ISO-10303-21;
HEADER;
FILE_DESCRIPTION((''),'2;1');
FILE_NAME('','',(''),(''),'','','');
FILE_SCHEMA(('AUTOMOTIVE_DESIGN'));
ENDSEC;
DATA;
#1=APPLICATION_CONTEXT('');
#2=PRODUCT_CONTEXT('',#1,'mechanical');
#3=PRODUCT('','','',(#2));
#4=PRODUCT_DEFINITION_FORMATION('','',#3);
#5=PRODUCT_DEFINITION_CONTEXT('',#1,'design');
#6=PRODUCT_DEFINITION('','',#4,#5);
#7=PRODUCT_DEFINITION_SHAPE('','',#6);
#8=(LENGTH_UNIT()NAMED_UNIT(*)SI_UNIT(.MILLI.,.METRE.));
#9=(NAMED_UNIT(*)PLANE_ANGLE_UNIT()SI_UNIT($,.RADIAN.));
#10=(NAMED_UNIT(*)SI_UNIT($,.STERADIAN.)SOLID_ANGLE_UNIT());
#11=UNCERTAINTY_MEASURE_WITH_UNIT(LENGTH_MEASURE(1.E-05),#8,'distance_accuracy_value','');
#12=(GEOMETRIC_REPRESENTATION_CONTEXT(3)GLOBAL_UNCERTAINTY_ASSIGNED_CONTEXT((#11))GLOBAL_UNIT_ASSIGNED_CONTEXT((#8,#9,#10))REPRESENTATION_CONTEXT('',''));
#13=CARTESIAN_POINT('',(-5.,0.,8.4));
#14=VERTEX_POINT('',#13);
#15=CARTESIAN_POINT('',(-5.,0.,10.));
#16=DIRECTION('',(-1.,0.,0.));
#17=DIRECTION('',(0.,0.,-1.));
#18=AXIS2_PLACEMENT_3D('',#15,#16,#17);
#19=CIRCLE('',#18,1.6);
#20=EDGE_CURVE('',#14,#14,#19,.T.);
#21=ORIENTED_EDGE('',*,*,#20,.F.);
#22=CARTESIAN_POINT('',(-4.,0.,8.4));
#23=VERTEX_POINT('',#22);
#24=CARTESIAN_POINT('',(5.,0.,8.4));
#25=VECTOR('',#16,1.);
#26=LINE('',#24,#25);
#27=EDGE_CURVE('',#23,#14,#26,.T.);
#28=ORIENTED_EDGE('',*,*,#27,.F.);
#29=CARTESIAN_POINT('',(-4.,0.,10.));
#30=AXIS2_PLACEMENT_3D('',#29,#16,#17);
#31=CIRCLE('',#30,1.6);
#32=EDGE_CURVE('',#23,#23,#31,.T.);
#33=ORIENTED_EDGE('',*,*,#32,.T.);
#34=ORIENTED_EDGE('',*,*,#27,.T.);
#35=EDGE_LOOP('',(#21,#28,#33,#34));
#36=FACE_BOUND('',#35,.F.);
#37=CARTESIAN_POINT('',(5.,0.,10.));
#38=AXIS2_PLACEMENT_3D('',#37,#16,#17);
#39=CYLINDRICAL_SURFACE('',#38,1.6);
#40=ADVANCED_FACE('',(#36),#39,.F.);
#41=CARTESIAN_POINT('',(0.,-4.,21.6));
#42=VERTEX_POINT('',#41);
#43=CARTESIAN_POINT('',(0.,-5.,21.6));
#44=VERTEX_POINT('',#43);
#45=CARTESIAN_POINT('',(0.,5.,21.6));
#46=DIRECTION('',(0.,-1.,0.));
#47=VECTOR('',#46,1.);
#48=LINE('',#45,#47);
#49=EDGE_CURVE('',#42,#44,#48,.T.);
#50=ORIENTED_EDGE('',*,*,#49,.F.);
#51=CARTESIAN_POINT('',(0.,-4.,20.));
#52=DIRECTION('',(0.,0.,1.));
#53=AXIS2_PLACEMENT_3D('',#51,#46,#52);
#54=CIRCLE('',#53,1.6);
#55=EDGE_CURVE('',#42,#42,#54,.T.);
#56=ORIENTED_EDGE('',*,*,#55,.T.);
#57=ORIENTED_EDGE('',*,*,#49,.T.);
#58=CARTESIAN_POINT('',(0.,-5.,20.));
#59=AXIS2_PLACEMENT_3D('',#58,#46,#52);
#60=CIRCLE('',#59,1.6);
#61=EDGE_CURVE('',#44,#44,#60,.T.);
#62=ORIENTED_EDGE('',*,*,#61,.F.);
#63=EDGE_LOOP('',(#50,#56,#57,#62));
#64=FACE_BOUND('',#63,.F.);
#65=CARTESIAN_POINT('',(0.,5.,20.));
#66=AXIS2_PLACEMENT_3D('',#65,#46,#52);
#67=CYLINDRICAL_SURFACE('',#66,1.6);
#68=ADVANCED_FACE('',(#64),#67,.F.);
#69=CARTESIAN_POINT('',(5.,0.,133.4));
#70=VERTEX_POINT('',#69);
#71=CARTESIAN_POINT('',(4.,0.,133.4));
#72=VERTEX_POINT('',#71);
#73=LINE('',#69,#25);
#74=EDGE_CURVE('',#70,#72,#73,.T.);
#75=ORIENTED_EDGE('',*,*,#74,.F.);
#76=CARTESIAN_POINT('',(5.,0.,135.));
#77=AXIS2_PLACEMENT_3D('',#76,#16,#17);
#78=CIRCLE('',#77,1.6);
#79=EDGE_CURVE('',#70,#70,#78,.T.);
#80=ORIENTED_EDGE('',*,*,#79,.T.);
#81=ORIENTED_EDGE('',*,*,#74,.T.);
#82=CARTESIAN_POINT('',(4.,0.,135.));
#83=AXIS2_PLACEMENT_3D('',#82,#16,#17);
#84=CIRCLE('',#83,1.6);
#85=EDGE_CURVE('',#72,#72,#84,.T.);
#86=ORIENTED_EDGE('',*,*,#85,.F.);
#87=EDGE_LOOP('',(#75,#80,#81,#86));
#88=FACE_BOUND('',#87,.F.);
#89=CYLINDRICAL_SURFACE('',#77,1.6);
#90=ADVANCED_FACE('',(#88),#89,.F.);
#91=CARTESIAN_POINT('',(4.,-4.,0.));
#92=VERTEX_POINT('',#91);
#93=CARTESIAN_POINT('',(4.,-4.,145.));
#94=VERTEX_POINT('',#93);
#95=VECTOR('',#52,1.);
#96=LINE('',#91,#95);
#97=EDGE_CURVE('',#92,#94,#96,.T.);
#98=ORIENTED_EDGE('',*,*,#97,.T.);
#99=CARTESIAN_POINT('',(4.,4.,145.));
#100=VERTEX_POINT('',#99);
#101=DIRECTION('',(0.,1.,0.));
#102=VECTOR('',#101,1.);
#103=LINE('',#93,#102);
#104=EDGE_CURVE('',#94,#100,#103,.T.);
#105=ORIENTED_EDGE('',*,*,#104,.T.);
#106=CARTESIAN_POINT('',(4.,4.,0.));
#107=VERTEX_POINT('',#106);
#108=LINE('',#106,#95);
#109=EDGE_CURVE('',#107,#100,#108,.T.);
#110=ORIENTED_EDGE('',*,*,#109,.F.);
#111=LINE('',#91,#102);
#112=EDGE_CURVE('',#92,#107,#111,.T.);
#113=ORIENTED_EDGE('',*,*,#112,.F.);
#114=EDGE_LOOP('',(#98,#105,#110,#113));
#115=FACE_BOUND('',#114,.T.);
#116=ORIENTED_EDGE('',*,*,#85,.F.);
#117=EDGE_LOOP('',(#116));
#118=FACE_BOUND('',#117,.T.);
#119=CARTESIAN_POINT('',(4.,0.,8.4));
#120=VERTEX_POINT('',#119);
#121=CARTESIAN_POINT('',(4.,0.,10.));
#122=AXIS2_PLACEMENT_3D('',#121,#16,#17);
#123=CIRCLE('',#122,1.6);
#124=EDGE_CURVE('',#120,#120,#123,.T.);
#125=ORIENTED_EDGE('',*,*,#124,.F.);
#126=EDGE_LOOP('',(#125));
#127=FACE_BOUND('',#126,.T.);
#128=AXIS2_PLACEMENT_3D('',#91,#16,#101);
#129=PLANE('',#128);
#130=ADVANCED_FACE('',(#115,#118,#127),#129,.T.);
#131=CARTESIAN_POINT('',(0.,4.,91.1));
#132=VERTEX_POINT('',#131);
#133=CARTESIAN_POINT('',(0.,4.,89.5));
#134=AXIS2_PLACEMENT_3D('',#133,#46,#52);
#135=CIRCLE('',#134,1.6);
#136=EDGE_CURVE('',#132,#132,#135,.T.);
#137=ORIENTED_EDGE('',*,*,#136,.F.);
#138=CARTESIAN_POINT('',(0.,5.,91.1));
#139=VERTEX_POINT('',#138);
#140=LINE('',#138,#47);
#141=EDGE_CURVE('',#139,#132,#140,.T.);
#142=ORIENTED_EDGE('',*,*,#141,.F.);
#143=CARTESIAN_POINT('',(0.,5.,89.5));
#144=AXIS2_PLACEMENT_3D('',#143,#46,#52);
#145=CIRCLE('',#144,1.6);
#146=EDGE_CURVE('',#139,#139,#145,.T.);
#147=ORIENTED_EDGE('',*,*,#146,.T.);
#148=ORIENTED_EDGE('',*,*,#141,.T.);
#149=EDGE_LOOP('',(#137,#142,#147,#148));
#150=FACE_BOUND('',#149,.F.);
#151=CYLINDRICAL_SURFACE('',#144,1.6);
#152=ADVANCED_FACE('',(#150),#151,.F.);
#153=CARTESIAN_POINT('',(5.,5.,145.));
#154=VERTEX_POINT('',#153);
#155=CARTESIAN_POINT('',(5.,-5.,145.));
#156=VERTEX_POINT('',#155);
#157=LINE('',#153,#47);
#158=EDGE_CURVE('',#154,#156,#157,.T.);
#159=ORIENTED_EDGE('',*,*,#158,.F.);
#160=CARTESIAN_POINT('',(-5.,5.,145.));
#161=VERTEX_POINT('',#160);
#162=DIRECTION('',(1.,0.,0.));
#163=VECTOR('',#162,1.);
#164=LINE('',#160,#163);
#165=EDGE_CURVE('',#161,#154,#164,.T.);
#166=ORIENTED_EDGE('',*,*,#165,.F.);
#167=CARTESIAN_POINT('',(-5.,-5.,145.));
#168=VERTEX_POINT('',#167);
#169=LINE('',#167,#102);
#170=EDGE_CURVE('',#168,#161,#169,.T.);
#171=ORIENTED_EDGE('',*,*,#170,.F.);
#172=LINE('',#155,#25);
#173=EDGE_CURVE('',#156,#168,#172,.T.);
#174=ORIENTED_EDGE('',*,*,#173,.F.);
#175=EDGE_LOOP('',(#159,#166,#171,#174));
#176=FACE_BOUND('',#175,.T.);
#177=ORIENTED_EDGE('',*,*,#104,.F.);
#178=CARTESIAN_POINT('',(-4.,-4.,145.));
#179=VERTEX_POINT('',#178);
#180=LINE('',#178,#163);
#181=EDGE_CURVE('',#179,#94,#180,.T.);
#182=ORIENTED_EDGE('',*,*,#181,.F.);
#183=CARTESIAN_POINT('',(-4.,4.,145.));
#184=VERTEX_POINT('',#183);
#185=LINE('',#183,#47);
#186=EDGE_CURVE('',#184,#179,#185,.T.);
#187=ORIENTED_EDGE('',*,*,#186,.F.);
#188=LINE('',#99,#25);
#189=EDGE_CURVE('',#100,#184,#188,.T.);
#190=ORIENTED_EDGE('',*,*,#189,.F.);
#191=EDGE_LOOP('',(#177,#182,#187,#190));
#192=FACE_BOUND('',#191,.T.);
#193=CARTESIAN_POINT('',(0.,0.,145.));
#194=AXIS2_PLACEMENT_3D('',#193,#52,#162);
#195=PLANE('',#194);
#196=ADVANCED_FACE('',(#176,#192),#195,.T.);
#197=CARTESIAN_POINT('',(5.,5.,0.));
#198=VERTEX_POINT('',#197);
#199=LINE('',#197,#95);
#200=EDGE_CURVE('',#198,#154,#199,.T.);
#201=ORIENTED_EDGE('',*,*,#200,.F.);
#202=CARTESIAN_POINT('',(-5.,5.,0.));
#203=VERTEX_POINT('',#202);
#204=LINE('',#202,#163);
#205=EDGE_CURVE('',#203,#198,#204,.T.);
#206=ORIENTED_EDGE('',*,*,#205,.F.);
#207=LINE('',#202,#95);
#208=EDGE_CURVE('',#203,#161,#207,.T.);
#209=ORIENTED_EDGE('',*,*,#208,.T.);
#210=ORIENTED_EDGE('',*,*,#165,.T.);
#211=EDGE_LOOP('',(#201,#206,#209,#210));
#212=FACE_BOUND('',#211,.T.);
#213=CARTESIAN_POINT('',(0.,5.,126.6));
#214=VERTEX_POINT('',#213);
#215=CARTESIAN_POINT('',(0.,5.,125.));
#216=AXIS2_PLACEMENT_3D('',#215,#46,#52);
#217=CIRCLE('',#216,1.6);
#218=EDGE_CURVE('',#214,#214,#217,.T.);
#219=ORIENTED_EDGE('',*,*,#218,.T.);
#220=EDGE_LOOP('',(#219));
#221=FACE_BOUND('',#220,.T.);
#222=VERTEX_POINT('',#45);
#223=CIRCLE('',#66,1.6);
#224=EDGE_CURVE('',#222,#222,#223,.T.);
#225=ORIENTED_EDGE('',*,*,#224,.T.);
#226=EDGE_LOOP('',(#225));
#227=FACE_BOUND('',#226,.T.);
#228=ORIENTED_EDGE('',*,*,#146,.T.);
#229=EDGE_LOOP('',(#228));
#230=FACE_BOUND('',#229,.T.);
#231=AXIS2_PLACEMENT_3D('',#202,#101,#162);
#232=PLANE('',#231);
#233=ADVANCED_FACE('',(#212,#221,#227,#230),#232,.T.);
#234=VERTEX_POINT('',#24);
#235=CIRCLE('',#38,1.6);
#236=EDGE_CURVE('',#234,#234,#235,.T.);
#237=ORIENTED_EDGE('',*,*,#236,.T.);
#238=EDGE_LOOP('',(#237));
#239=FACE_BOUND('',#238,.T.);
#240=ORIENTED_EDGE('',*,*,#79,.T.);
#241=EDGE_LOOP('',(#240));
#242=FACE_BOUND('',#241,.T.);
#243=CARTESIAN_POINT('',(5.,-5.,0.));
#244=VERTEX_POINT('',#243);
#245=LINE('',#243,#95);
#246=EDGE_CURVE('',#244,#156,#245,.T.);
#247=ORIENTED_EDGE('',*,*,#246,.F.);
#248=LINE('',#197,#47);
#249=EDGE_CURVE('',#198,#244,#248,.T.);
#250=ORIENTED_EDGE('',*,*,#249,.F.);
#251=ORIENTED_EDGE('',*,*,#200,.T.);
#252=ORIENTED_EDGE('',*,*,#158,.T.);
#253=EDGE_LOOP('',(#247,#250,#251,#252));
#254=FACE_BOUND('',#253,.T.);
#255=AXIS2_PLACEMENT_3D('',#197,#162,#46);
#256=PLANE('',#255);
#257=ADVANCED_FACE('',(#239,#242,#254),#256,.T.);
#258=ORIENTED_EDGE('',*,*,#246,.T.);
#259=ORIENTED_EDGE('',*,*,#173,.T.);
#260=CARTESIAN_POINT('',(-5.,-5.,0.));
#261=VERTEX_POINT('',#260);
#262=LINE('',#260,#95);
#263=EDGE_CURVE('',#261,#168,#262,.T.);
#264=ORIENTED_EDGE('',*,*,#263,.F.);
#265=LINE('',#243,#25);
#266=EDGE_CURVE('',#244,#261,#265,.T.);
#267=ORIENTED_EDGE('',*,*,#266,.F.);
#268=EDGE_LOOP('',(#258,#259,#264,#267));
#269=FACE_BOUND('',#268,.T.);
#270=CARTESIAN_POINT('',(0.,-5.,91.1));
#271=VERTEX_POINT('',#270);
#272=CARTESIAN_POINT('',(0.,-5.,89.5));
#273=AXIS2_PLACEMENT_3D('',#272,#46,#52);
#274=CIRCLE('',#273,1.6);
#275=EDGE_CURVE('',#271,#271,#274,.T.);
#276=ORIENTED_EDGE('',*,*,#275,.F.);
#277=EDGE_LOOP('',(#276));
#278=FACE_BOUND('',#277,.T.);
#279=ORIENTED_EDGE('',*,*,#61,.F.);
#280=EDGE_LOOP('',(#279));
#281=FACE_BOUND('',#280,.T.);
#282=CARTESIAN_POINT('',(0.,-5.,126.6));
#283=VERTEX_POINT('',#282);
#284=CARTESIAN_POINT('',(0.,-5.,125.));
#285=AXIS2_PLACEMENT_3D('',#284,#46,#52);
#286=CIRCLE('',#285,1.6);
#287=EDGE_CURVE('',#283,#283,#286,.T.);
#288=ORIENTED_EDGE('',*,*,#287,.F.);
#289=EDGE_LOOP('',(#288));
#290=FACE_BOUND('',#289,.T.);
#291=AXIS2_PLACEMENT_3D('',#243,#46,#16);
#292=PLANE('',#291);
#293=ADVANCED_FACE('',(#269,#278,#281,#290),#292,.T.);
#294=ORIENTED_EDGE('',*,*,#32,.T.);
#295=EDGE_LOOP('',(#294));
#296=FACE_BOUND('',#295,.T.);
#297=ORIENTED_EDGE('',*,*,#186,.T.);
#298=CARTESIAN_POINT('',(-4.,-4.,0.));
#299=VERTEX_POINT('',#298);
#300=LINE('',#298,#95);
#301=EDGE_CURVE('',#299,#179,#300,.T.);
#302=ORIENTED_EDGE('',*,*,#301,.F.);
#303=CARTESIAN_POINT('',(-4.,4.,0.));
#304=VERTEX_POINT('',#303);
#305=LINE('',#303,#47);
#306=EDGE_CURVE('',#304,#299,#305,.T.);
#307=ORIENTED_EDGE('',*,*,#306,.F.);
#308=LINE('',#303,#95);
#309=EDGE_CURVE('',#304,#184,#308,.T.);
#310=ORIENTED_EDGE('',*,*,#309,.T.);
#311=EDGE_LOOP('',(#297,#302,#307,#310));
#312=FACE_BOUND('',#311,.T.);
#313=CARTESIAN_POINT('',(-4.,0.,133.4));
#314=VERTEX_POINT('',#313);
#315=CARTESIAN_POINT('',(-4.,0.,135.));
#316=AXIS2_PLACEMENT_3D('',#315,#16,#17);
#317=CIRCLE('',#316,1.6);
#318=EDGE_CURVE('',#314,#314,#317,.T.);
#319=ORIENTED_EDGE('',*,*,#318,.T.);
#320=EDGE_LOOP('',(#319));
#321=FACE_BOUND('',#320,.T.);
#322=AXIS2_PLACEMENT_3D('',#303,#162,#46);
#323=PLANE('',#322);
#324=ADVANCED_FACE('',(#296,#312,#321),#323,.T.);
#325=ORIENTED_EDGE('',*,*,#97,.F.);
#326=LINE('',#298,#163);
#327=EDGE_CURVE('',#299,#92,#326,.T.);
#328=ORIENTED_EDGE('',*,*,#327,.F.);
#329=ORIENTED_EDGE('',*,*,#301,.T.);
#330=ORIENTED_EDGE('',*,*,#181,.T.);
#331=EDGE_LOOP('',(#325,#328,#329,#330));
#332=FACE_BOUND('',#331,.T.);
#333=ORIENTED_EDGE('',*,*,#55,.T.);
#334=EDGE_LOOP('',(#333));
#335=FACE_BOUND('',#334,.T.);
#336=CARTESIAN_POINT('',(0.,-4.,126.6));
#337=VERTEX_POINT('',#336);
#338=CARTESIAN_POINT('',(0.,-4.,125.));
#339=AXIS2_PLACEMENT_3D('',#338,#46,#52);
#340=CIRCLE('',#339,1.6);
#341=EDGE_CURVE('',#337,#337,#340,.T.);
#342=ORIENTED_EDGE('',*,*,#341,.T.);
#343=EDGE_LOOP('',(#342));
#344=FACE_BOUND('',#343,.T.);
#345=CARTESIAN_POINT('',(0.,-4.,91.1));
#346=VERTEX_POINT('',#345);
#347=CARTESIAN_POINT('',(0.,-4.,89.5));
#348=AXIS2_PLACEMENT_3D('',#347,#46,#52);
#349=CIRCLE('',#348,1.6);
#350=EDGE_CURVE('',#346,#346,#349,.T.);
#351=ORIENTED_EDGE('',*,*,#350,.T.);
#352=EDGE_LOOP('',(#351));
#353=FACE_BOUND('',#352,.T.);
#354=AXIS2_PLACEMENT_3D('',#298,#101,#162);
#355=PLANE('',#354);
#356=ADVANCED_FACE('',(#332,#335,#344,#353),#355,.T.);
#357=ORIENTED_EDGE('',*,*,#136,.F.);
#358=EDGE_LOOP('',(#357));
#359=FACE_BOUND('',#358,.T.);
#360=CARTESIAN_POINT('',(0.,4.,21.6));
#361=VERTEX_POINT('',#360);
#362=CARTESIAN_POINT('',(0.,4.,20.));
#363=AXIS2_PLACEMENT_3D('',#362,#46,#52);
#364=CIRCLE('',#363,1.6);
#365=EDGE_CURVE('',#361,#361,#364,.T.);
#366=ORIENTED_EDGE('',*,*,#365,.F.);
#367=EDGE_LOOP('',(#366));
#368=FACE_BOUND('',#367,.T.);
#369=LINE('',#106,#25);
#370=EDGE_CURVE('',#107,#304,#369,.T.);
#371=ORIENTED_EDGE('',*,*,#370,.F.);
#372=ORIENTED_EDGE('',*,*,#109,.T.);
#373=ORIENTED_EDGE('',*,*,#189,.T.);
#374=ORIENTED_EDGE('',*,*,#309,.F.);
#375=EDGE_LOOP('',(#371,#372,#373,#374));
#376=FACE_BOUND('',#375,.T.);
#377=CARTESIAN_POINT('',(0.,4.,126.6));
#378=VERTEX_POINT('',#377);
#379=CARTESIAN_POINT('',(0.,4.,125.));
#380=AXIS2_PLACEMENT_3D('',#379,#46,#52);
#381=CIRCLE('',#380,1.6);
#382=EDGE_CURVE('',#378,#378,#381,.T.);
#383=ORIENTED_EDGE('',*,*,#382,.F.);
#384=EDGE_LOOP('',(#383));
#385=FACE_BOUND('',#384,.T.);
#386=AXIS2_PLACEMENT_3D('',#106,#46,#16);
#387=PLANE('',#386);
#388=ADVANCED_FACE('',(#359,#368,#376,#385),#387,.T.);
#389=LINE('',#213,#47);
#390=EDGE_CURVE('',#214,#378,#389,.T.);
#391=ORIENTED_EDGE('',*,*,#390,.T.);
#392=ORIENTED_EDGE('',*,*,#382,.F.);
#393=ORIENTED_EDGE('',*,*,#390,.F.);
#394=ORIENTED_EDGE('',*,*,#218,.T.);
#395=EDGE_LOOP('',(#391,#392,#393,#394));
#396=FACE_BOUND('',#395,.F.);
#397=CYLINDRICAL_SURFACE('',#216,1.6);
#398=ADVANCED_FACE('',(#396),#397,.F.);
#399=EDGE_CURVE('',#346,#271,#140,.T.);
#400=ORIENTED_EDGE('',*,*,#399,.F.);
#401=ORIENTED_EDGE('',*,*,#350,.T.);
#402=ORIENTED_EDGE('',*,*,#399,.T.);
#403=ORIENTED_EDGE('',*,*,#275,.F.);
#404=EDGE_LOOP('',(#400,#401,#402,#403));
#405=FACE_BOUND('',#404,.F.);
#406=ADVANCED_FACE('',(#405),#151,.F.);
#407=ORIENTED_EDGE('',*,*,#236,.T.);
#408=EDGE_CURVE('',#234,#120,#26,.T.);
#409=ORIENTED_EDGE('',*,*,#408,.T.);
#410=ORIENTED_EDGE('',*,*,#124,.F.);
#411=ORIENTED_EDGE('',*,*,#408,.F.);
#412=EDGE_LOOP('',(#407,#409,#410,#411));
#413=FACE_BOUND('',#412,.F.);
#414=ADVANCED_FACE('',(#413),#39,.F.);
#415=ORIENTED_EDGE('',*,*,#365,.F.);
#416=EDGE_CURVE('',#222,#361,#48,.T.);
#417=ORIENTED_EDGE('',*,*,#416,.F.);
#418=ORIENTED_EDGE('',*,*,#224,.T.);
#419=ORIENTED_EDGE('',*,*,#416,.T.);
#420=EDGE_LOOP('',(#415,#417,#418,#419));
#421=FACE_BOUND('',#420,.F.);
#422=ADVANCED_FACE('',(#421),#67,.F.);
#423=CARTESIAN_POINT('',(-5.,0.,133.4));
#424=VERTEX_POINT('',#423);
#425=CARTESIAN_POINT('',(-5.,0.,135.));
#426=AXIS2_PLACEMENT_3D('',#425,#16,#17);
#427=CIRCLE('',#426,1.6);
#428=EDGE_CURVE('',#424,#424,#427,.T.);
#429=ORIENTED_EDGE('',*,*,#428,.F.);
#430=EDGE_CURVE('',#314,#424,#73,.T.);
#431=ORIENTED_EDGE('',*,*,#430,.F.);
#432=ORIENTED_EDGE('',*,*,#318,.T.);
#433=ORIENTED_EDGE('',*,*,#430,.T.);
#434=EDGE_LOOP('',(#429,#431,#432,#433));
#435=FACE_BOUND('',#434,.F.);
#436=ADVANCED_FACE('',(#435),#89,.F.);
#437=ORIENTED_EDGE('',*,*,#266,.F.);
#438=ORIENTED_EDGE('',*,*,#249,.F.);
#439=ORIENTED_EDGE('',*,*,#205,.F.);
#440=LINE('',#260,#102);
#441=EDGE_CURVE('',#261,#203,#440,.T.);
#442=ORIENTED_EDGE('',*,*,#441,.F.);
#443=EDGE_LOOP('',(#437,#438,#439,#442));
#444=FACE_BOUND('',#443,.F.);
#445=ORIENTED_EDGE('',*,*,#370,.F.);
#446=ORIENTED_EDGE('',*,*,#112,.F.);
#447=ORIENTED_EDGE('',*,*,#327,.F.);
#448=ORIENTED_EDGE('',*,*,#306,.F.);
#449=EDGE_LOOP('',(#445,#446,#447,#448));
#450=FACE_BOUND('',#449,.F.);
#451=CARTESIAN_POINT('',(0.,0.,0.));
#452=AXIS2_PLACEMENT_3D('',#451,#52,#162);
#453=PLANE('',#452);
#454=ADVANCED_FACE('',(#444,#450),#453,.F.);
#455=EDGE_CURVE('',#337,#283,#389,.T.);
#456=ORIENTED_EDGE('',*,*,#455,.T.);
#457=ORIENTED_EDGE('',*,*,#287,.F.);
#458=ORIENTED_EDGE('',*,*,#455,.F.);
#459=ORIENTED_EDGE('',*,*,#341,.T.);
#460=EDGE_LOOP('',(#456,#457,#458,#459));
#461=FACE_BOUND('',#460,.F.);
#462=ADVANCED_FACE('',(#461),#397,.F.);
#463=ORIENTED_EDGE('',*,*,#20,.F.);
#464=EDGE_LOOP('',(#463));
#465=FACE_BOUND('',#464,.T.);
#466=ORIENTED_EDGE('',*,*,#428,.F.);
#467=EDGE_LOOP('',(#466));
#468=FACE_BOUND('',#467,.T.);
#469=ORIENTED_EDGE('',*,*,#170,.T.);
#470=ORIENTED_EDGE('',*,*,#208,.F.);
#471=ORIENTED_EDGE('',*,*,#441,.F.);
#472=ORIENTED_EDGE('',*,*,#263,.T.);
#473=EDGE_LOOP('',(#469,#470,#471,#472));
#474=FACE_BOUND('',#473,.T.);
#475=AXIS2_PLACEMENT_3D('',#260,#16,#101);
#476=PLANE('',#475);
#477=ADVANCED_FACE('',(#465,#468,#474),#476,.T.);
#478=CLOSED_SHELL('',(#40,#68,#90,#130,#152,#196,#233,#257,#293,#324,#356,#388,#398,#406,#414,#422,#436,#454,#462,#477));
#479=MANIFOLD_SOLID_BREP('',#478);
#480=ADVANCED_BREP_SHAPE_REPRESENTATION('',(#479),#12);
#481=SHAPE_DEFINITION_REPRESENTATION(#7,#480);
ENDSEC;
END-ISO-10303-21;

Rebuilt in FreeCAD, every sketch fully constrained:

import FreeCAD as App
import Part
import Sketcher
from FreeCAD import Vector


def add_polygon(sketch, points):
    """Adds a closed chain of lines whose ends are joined by coincident constraints."""
    first, n = sketch.GeometryCount, len(points)
    for a, b in zip(points, points[1:] + points[:1]):
        sketch.addGeometry(Part.LineSegment(App.Vector(*a, 0), App.Vector(*b, 0)), False)
    for i in range(n):
        sketch.addConstraint(Sketcher.Constraint("Coincident", first + i, 2, first + (i + 1) % n, 1))

doc = App.newDocument("Part")
body = doc.addObject("PartDesign::Body", "Body")

# Sketch on XY plane
sketch1 = doc.addObject("Sketcher::SketchObject", "Sketch")
body.addObject(sketch1)
sketch1.AttachmentSupport = (doc.XY_Plane, [""])
sketch1.MapMode = "FlatFace"
add_polygon(sketch1, [(-5, -5), (5, -5), (5, 5), (-5, 5)])  # lines 0-3
add_polygon(sketch1, [(-4, 4), (4, 4), (4, -4), (-4, -4)])  # lines 4-7
sketch1.addConstraint(Sketcher.Constraint("Horizontal", 0))
sketch1.addConstraint(Sketcher.Constraint("Vertical", 1))
sketch1.addConstraint(Sketcher.Constraint("Horizontal", 2))
sketch1.addConstraint(Sketcher.Constraint("Vertical", 3))
sketch1.addConstraint(Sketcher.Constraint("Horizontal", 4))
sketch1.addConstraint(Sketcher.Constraint("Vertical", 5))
sketch1.addConstraint(Sketcher.Constraint("Horizontal", 6))
sketch1.addConstraint(Sketcher.Constraint("Vertical", 7))
sketch1.addConstraint(Sketcher.Constraint("Symmetric", 0, 2, 2, 2, -1, 1))
sketch1.addConstraint(Sketcher.Constraint("Symmetric", 4, 2, 6, 2, -1, 1))
sketch1.addConstraint(Sketcher.Constraint("Equal", 2, 1))
sketch1.addConstraint(Sketcher.Constraint("Equal", 6, 5))
sketch1.addConstraint(Sketcher.Constraint("DistanceX", 0, 1, 0, 2, 10.0))
sketch1.addConstraint(Sketcher.Constraint("DistanceX", 4, 2, 1, 2, 1.0))
pad1 = doc.addObject("PartDesign::Pad", "Pad")
body.addObject(pad1)
pad1.Profile = sketch1
pad1.Length = 145

# Sketch on YZ plane
sketch2 = doc.addObject("Sketcher::SketchObject", "Sketch001")
body.addObject(sketch2)
sketch2.AttachmentSupport = (doc.YZ_Plane, [""])
sketch2.MapMode = "FlatFace"
sketch2.AttachmentOffset = App.Placement(Vector(0, 0, 5), App.Rotation())
sketch2.addGeometry(Part.Circle(Vector(0, 135, 0), Vector(0, 0, 1), 1.6), False)
sketch2.addGeometry(Part.Circle(Vector(0, 10, 0), Vector(0, 0, 1), 1.6), False)
sketch2.addConstraint(Sketcher.Constraint("Equal", 0, 1))
sketch2.addConstraint(Sketcher.Constraint("PointOnObject", 0, 3, -2))
sketch2.addConstraint(Sketcher.Constraint("PointOnObject", 1, 3, -2))
sketch2.addConstraint(Sketcher.Constraint("Diameter", 0, 3.2))
sketch2.addConstraint(Sketcher.Constraint("DistanceY", -1, 1, 0, 3, 135.0))
sketch2.addConstraint(Sketcher.Constraint("DistanceY", -1, 1, 1, 3, 10.0))
doc.recompute()
hole = doc.addObject("PartDesign::Hole", "Hole")
body.addObject(hole)
hole.Profile = sketch2
hole.ThreadType = "None"
hole.Diameter = 3.2
hole.DepthType = "ThroughAll"

# Sketch on XZ plane
sketch3 = doc.addObject("Sketcher::SketchObject", "Sketch002")
body.addObject(sketch3)
sketch3.AttachmentSupport = (doc.XZ_Plane, [""])
sketch3.MapMode = "FlatFace"
sketch3.AttachmentOffset = App.Placement(Vector(0, 0, -5), App.Rotation())
sketch3.addGeometry(Part.Circle(Vector(0, 125, 0), Vector(0, 0, 1), 1.6), False)
sketch3.addGeometry(Part.Circle(Vector(0, 20, 0), Vector(0, 0, 1), 1.6), False)
sketch3.addGeometry(Part.Circle(Vector(0, 89.5, 0), Vector(0, 0, 1), 1.6), False)
sketch3.addConstraint(Sketcher.Constraint("Equal", 0, 1))
sketch3.addConstraint(Sketcher.Constraint("Equal", 1, 2))
sketch3.addConstraint(Sketcher.Constraint("PointOnObject", 0, 3, -2))
sketch3.addConstraint(Sketcher.Constraint("PointOnObject", 1, 3, -2))
sketch3.addConstraint(Sketcher.Constraint("PointOnObject", 2, 3, -2))
sketch3.addConstraint(Sketcher.Constraint("Diameter", 0, 3.2))
sketch3.addConstraint(Sketcher.Constraint("DistanceY", -1, 1, 0, 3, 125.0))
sketch3.addConstraint(Sketcher.Constraint("DistanceY", -1, 1, 1, 3, 20.0))
sketch3.addConstraint(Sketcher.Constraint("DistanceY", -1, 1, 2, 3, 89.5))
doc.recompute()
hole2 = doc.addObject("PartDesign::Hole", "Hole001")
body.addObject(hole2)
hole2.Profile = sketch3
hole2.ThreadType = "None"
hole2.Diameter = 3.2
hole2.DepthType = "ThroughAll"
hole2.Reversed = True

doc.recompute()
